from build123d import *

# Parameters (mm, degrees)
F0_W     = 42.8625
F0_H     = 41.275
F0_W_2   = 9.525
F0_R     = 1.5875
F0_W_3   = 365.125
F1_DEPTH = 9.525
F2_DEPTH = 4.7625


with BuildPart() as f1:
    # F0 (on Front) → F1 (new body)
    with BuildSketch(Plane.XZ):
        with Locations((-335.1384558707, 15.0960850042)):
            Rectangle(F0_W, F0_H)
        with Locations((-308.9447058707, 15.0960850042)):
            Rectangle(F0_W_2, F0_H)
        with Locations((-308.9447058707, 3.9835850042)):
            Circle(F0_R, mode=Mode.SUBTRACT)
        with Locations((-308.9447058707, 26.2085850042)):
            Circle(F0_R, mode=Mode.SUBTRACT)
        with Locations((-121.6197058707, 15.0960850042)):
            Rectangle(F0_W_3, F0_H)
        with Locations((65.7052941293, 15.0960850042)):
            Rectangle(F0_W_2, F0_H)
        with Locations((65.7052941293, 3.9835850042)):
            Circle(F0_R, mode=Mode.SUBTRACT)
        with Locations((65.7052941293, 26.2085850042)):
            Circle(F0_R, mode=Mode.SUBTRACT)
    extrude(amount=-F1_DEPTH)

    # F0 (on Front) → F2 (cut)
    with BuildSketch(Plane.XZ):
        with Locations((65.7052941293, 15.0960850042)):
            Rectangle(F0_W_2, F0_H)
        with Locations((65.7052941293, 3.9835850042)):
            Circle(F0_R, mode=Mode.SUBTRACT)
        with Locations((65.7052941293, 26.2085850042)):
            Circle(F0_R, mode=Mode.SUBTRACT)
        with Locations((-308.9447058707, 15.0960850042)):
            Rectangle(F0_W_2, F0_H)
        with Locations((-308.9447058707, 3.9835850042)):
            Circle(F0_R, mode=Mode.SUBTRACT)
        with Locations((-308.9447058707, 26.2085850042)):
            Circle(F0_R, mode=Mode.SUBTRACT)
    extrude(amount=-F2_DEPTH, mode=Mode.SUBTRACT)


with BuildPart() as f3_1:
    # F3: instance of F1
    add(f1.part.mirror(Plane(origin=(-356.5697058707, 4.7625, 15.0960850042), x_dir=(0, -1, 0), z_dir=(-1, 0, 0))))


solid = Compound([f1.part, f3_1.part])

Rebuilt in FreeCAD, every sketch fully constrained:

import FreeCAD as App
import Part
import Sketcher

V = App.Vector
Q = App.Units.Quantity


def add_polygon(sketch, points):
    """Adds a closed chain of lines whose ends are joined by coincident constraints."""
    first, n = sketch.GeometryCount, len(points)
    for a, b in zip(points, points[1:] + points[:1]):
        sketch.addGeometry(Part.LineSegment(App.Vector(*a, 0), App.Vector(*b, 0)), False)
    for i in range(n):
        sketch.addConstraint(Sketcher.Constraint("Coincident", first + i, 2, first + (i + 1) % n, 1))

doc = App.newDocument("Part")
body = doc.addObject("PartDesign::Body", "Body")

# Sketch on XZ plane
sketch1 = doc.addObject("Sketcher::SketchObject", "Sketch")
body.addObject(sketch1)
sketch1.AttachmentSupport = (doc.XZ_Plane, [""])
sketch1.MapMode = "FlatFace"
add_polygon(sketch1, [(-356.6, 35.7), (-356.6, -5.5), (70.5, -5.5), (70.5, 35.7)])  # lines 0-3
sketch1.addGeometry(Part.Circle(V(-308.9, 4, 0), V(0, 0, 1), 1.6), False)  # 4
sketch1.addGeometry(Part.Circle(V(65.7, 4, 0), V(0, 0, 1), 1.6), False)  # 5
sketch1.addGeometry(Part.Circle(V(-308.9, 26.2, 0), V(0, 0, 1), 1.6), False)  # 6
sketch1.addGeometry(Part.Circle(V(65.7, 26.2, 0), V(0, 0, 1), 1.6), False)  # 7
sketch1.addConstraint(Sketcher.Constraint("Vertical", 0))
sketch1.addConstraint(Sketcher.Constraint("Horizontal", 1))
sketch1.addConstraint(Sketcher.Constraint("Vertical", 2))
sketch1.addConstraint(Sketcher.Constraint("Horizontal", 3))
sketch1.addConstraint(Sketcher.Constraint("Equal", 4, 5))
sketch1.addConstraint(Sketcher.Constraint("Equal", 5, 6))
sketch1.addConstraint(Sketcher.Constraint("Equal", 6, 7))
sketch1.addConstraint(Sketcher.Constraint("Horizontal", 4, 3, 5, 3))
sketch1.addConstraint(Sketcher.Constraint("Horizontal", 6, 3, 7, 3))
sketch1.addConstraint(Sketcher.Constraint("Vertical", 4, 3, 6, 3))
sketch1.addConstraint(Sketcher.Constraint("Vertical", 5, 3, 7, 3))
sketch1.addConstraint(Sketcher.Constraint("Diameter", 4, Q("0.125 in")))
sketch1.addConstraint(Sketcher.Constraint("DistanceX", 1, 1, 1, 2, Q("16.8125 in")))
sketch1.addConstraint(Sketcher.Constraint("DistanceY", 0, 2, 0, 1, Q("1.625 in")))
sketch1.addConstraint(Sketcher.Constraint("DistanceX", 4, 3, 5, 3, Q("14.75 in")))
sketch1.addConstraint(Sketcher.Constraint("DistanceY", 0, 2, 6, 3, Q("1.25 in")))
sketch1.addConstraint(Sketcher.Constraint("DistanceY", 5, 3, 2, 2, Q("1.25 in")))
sketch1.addConstraint(Sketcher.Constraint("DistanceX", 0, 2, 4, 3, Q("1.875 in")))
sketch1.addConstraint(Sketcher.Constraint("DistanceX", 4, 3, -1, 1, Q("308.944706 mm")))
sketch1.addConstraint(Sketcher.Constraint("DistanceY", -1, 1, 4, 3, Q("3.983585 mm")))
pad1 = doc.addObject("PartDesign::Pad", "Pad")
body.addObject(pad1)
pad1.Profile = sketch1
pad1.Length = Q("0.375 in")
pad1.Reversed = True

# Sketch on XZ plane
sketch2 = doc.addObject("Sketcher::SketchObject", "Sketch001")
body.addObject(sketch2)
sketch2.AttachmentSupport = (doc.XZ_Plane, [""])
sketch2.MapMode = "FlatFace"
add_polygon(sketch2, [(60.9, 35.7), (60.9, -5.5), (70.5, -5.5), (70.5, 35.7)])  # lines 0-3
sketch2.addGeometry(Part.Circle(V(65.7, 4, 0), V(0, 0, 1), 1.6), False)  # 4
sketch2.addGeometry(Part.Circle(V(65.7, 26.2, 0), V(0, 0, 1), 1.6), False)  # 5
add_polygon(sketch2, [(-313.7, 35.7), (-313.7, -5.5), (-304.2, -5.5), (-304.2, 35.7)])  # lines 6-9
sketch2.addGeometry(Part.Circle(V(-308.9, 4, 0), V(0, 0, 1), 1.6), False)  # 10
sketch2.addGeometry(Part.Circle(V(-308.9, 26.2, 0), V(0, 0, 1), 1.6), False)  # 11
sketch2.addConstraint(Sketcher.Constraint("Vertical", 0))
sketch2.addConstraint(Sketcher.Constraint("Horizontal", 1))
sketch2.addConstraint(Sketcher.Constraint("Vertical", 2))
sketch2.addConstraint(Sketcher.Constraint("Horizontal", 3))
sketch2.addConstraint(Sketcher.Constraint("Vertical", 6))
sketch2.addConstraint(Sketcher.Constraint("Horizontal", 7))
sketch2.addConstraint(Sketcher.Constraint("Vertical", 8))
sketch2.addConstraint(Sketcher.Constraint("Horizontal", 9))
sketch2.addConstraint(Sketcher.Constraint("Equal", 4, 5))
sketch2.addConstraint(Sketcher.Constraint("Equal", 5, 10))
sketch2.addConstraint(Sketcher.Constraint("Equal", 10, 11))
sketch2.addConstraint(Sketcher.Constraint("Horizontal", 4, 3, 10, 3))
sketch2.addConstraint(Sketcher.Constraint("Horizontal", 5, 3, 11, 3))
sketch2.addConstraint(Sketcher.Constraint("Horizontal", 1, 2, 6, 2))
sketch2.addConstraint(Sketcher.Constraint("Horizontal", 3, 2, 8, 2))
sketch2.addConstraint(Sketcher.Constraint("Vertical", 4, 3, 5, 3))
sketch2.addConstraint(Sketcher.Constraint("Vertical", 10, 3, 11, 3))
sketch2.addConstraint(Sketcher.Constraint("Equal", 3, 7))
sketch2.addConstraint(Sketcher.Constraint("Diameter", 4, Q("0.125 in")))
sketch2.addConstraint(Sketcher.Constraint("DistanceX", 1, 1, 1, 2, Q("0.375 in")))
sketch2.addConstraint(Sketcher.Constraint("DistanceY", 0, 2, 0, 1, Q("1.625 in")))
sketch2.addConstraint(Sketcher.Constraint("DistanceX", 10, 3, 4, 3, Q("14.75 in")))
sketch2.addConstraint(Sketcher.Constraint("DistanceY", 0, 2, 5, 3, Q("1.25 in")))
sketch2.addConstraint(Sketcher.Constraint("DistanceY", 4, 3, 2, 2, Q("1.25 in")))
sketch2.addConstraint(Sketcher.Constraint("DistanceX", 6, 2, 0, 2, Q("14.75 in")))
sketch2.addConstraint(Sketcher.Constraint("DistanceX", 0, 2, 4, 3, Q("0.1875 in")))
sketch2.addConstraint(Sketcher.Constraint("DistanceX", -1, 1, 4, 3, Q("65.705294 mm")))
sketch2.addConstraint(Sketcher.Constraint("DistanceY", -1, 1, 4, 3, Q("3.983585 mm")))
pocket1 = doc.addObject("PartDesign::Pocket", "Pocket")
body.addObject(pocket1)
pocket1.Profile = sketch2
pocket1.Length = Q("0.1875 in")
body2 = doc.addObject("PartDesign::Body", "Body001")
doc.recompute()

mirroring = doc.addObject("Part::Mirroring", "Mirroring")
mirroring.Source = body
mirroring.Base = V(-356.569706, 4.7625, 15.096085)
mirroring.Normal = V(-1, 0, 0)
body2.BaseFeature = mirroring
doc.recompute()
mirroring.Visibility = False

doc.recompute()
